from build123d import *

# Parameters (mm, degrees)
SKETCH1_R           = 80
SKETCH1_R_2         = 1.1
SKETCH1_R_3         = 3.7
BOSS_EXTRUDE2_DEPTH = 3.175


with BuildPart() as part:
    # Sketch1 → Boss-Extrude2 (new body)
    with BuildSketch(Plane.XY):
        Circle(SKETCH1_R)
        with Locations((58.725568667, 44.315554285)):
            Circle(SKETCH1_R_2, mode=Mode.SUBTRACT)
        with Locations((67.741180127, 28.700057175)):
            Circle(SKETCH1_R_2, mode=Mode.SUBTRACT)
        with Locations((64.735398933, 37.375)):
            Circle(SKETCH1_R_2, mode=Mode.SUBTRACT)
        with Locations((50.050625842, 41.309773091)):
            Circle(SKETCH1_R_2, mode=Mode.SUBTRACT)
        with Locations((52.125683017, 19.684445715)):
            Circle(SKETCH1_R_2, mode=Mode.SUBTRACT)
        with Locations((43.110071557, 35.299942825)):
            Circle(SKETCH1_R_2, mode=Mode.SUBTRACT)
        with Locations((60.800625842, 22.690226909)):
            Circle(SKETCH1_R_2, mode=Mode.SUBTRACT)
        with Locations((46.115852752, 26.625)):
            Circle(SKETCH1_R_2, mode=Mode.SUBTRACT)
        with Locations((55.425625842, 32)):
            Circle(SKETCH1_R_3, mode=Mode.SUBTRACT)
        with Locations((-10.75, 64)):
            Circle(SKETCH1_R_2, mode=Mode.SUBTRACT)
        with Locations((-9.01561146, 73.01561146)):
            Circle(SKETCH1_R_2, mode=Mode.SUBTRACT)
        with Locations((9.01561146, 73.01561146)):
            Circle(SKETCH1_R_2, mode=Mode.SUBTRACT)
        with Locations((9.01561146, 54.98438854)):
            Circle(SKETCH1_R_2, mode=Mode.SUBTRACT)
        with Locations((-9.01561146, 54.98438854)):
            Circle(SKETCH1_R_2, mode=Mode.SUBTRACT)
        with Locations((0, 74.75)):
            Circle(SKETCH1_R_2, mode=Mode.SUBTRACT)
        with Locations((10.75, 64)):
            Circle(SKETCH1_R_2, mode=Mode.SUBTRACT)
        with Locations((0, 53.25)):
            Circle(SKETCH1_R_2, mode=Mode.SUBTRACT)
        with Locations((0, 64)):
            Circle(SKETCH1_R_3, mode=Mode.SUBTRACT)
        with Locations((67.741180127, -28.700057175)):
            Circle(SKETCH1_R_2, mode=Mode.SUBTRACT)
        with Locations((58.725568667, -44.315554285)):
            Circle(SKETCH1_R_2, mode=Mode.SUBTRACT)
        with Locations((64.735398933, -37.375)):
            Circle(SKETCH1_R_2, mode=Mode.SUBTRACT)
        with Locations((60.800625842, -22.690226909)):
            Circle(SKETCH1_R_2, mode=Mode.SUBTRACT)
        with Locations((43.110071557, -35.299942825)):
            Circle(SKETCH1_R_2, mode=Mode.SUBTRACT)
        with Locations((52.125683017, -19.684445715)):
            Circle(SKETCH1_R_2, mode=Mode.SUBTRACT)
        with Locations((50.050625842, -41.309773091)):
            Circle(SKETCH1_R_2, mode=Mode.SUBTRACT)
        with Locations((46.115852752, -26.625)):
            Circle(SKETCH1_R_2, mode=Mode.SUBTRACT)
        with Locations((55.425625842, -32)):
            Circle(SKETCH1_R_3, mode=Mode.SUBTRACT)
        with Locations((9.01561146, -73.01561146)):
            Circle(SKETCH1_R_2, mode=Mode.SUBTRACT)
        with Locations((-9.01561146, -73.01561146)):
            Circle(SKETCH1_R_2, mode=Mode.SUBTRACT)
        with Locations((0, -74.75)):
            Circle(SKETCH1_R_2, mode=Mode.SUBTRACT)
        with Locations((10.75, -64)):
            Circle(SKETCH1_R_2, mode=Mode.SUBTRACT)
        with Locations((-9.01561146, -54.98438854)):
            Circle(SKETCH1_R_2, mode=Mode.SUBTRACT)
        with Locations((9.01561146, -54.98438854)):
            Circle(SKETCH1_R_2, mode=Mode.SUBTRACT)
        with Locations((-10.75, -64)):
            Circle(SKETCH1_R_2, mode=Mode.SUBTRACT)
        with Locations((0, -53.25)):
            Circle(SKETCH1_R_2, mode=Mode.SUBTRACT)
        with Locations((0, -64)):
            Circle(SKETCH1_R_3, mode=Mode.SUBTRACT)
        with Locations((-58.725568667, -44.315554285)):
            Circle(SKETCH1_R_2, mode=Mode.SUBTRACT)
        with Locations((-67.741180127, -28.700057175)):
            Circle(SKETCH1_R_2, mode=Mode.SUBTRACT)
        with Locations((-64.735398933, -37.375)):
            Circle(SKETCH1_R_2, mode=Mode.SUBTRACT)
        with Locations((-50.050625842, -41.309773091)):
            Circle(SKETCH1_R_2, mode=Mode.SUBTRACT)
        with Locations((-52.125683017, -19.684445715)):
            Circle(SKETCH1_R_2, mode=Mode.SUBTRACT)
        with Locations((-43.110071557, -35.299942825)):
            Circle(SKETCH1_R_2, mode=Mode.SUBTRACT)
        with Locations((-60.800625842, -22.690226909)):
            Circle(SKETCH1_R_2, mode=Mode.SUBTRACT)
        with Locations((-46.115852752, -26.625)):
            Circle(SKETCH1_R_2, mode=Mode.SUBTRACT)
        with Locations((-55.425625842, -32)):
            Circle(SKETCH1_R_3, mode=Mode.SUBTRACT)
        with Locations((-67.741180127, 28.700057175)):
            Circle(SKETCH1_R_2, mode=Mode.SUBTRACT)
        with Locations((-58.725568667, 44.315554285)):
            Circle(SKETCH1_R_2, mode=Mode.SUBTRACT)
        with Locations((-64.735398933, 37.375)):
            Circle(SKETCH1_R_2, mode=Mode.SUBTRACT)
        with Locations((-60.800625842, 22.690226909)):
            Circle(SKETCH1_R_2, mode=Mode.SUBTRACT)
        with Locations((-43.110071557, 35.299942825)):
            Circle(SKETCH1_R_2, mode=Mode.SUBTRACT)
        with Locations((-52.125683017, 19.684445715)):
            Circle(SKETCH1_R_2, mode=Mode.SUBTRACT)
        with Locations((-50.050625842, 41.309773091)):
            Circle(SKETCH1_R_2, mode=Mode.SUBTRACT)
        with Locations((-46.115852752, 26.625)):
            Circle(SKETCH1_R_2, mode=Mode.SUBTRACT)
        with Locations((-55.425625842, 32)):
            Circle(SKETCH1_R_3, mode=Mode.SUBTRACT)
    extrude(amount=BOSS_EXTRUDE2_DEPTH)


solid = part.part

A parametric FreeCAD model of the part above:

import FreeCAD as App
import Part
import Sketcher

doc = App.newDocument("Part")
params = doc.addObject("Spreadsheet::Sheet", "Params")
for row, (alias, value) in enumerate([
    ("sketch1_diameter", "160 mm"),
    ("sketch1_diameter2", "2.2 mm"),
    ("sketch1_diameter3", "7.4 mm"),
    ("pad1_length", "3.175 mm"),
], start=1):
    params.set(f"A{row}", alias)
    params.set(f"B{row}", "=" + value)
    params.setAlias(f"B{row}", alias)

body = doc.addObject("PartDesign::Body", "Body")

sketch1 = doc.addObject("Sketcher::SketchObject", "Sketch")
body.addObject(sketch1)
sketch1.AttachmentSupport = (doc.XY_Plane, [""])
sketch1.MapMode = "FlatFace"
sketch1.addGeometry([
    Part.Circle(App.Vector(0, 0, 0), App.Vector(0, 0, 1), 80),
    Part.Circle(App.Vector(-58.725569, -44.315554, 0), App.Vector(0, 0, 1), 1.1),
    Part.Circle(App.Vector(-50.050626, -41.309773, 0), App.Vector(0, 0, 1), 1.1),
    Part.Circle(App.Vector(-9.015611, -73.015611, 0), App.Vector(0, 0, 1), 1.1),
    Part.Circle(App.Vector(-10.75, -64, 0), App.Vector(0, 0, 1), 1.1),
    Part.Circle(App.Vector(-9.015611, -54.984389, 0), App.Vector(0, 0, 1), 1.1),
    Part.Circle(App.Vector(-64.735399, -37.375, 0), App.Vector(0, 0, 1), 1.1),
    Part.Circle(App.Vector(-67.74118, -28.700057, 0), App.Vector(0, 0, 1), 1.1),
    Part.Circle(App.Vector(-55.425626, -32, 0), App.Vector(0, 0, 1), 3.7),
    Part.Circle(App.Vector(-60.800626, -22.690227, 0), App.Vector(0, 0, 1), 1.1),
    Part.Circle(App.Vector(-52.125683, -19.684446, 0), App.Vector(0, 0, 1), 1.1),
    Part.Circle(App.Vector(-43.110072, -35.299943, 0), App.Vector(0, 0, 1), 1.1),
    Part.Circle(App.Vector(-46.115853, -26.625, 0), App.Vector(0, 0, 1), 1.1),
    Part.Circle(App.Vector(0, -74.75, 0), App.Vector(0, 0, 1), 1.1),
    Part.Circle(App.Vector(9.015611, -73.015611, 0), App.Vector(0, 0, 1), 1.1),
    Part.Circle(App.Vector(0, -64, 0), App.Vector(0, 0, 1), 3.7),
    Part.Circle(App.Vector(10.75, -64, 0), App.Vector(0, 0, 1), 1.1),
    Part.Circle(App.Vector(0, -53.25, 0), App.Vector(0, 0, 1), 1.1),
    Part.Circle(App.Vector(9.015611, -54.984389, 0), App.Vector(0, 0, 1), 1.1),
    Part.Circle(App.Vector(50.050626, -41.309773, 0), App.Vector(0, 0, 1), 1.1),
    Part.Circle(App.Vector(58.725569, -44.315554, 0), App.Vector(0, 0, 1), 1.1),
    Part.Circle(App.Vector(43.110072, -35.299943, 0), App.Vector(0, 0, 1), 1.1),
    Part.Circle(App.Vector(46.115853, -26.625, 0), App.Vector(0, 0, 1), 1.1),
    Part.Circle(App.Vector(55.425626, -32, 0), App.Vector(0, 0, 1), 3.7),
    Part.Circle(App.Vector(64.735399, -37.375, 0), App.Vector(0, 0, 1), 1.1),
    Part.Circle(App.Vector(67.74118, -28.700057, 0), App.Vector(0, 0, 1), 1.1),
    Part.Circle(App.Vector(52.125683, -19.684446, 0), App.Vector(0, 0, 1), 1.1),
    Part.Circle(App.Vector(60.800626, -22.690227, 0), App.Vector(0, 0, 1), 1.1),
    Part.Circle(App.Vector(-60.800626, 22.690227, 0), App.Vector(0, 0, 1), 1.1),
    Part.Circle(App.Vector(-52.125683, 19.684446, 0), App.Vector(0, 0, 1), 1.1),
    Part.Circle(App.Vector(-67.74118, 28.700057, 0), App.Vector(0, 0, 1), 1.1),
    Part.Circle(App.Vector(-64.735399, 37.375, 0), App.Vector(0, 0, 1), 1.1),
    Part.Circle(App.Vector(-55.425626, 32, 0), App.Vector(0, 0, 1), 3.7),
    Part.Circle(App.Vector(-46.115853, 26.625, 0), App.Vector(0, 0, 1), 1.1),
    Part.Circle(App.Vector(-43.110072, 35.299943, 0), App.Vector(0, 0, 1), 1.1),
    Part.Circle(App.Vector(-58.725569, 44.315554, 0), App.Vector(0, 0, 1), 1.1),
    Part.Circle(App.Vector(-50.050626, 41.309773, 0), App.Vector(0, 0, 1), 1.1),
    Part.Circle(App.Vector(-9.015611, 54.984389, 0), App.Vector(0, 0, 1), 1.1),
    Part.Circle(App.Vector(-10.75, 64, 0), App.Vector(0, 0, 1), 1.1),
    Part.Circle(App.Vector(-9.015611, 73.015611, 0), App.Vector(0, 0, 1), 1.1),
    Part.Circle(App.Vector(46.115853, 26.625, 0), App.Vector(0, 0, 1), 1.1),
    Part.Circle(App.Vector(43.110072, 35.299943, 0), App.Vector(0, 0, 1), 1.1),
    Part.Circle(App.Vector(52.125683, 19.684446, 0), App.Vector(0, 0, 1), 1.1),
    Part.Circle(App.Vector(60.800626, 22.690227, 0), App.Vector(0, 0, 1), 1.1),
    Part.Circle(App.Vector(55.425626, 32, 0), App.Vector(0, 0, 1), 3.7),
    Part.Circle(App.Vector(67.74118, 28.700057, 0), App.Vector(0, 0, 1), 1.1),
    Part.Circle(App.Vector(64.735399, 37.375, 0), App.Vector(0, 0, 1), 1.1),
    Part.Circle(App.Vector(0, 53.25, 0), App.Vector(0, 0, 1), 1.1),
    Part.Circle(App.Vector(9.015611, 54.984389, 0), App.Vector(0, 0, 1), 1.1),
    Part.Circle(App.Vector(0, 64, 0), App.Vector(0, 0, 1), 3.7),
    Part.Circle(App.Vector(10.75, 64, 0), App.Vector(0, 0, 1), 1.1),
    Part.Circle(App.Vector(0, 74.75, 0), App.Vector(0, 0, 1), 1.1),
    Part.Circle(App.Vector(9.015611, 73.015611, 0), App.Vector(0, 0, 1), 1.1),
    Part.Circle(App.Vector(50.050626, 41.309773, 0), App.Vector(0, 0, 1), 1.1),
    Part.Circle(App.Vector(58.725569, 44.315554, 0), App.Vector(0, 0, 1), 1.1),
], False)
sketch1.addConstraint([
    Sketcher.Constraint("Coincident", 0, 3, -1, 1),
    Sketcher.Constraint("Equal", 1, 2),
    Sketcher.Constraint("Equal", 2, 3),
    Sketcher.Constraint("Equal", 3, 4),
    Sketcher.Constraint("Equal", 4, 5),
    Sketcher.Constraint("Equal", 5, 6),
    Sketcher.Constraint("Equal", 6, 7),
    Sketcher.Constraint("Equal", 7, 9),
    Sketcher.Constraint("Equal", 9, 10),
    Sketcher.Constraint("Equal", 10, 11),
    Sketcher.Constraint("Equal", 11, 12),
    Sketcher.Constraint("Equal", 12, 13),
    Sketcher.Constraint("Equal", 13, 14),
    Sketcher.Constraint("Equal", 8, 15),
    Sketcher.Constraint("Equal", 14, 16),
    Sketcher.Constraint("Equal", 16, 17),
    Sketcher.Constraint("Equal", 17, 18),
    Sketcher.Constraint("Equal", 18, 19),
    Sketcher.Constraint("Equal", 19, 20),
    Sketcher.Constraint("Equal", 20, 21),
    Sketcher.Constraint("Equal", 21, 22),
    Sketcher.Constraint("Equal", 15, 23),
    Sketcher.Constraint("Equal", 22, 24),
    Sketcher.Constraint("Equal", 24, 25),
    Sketcher.Constraint("Equal", 25, 26),
    Sketcher.Constraint("Equal", 26, 27),
    Sketcher.Constraint("Equal", 27, 28),
    Sketcher.Constraint("Equal", 28, 29),
    Sketcher.Constraint("Equal", 29, 30),
    Sketcher.Constraint("Equal", 30, 31),
    Sketcher.Constraint("Equal", 23, 32),
    Sketcher.Constraint("Equal", 31, 33),
    Sketcher.Constraint("Equal", 33, 34),
    Sketcher.Constraint("Equal", 34, 35),
    Sketcher.Constraint("Equal", 35, 36),
    Sketcher.Constraint("Equal", 36, 37),
    Sketcher.Constraint("Equal", 37, 38),
    Sketcher.Constraint("Equal", 38, 39),
    Sketcher.Constraint("Equal", 39, 40),
    Sketcher.Constraint("Equal", 40, 41),
    Sketcher.Constraint("Equal", 41, 42),
    Sketcher.Constraint("Equal", 42, 43),
    Sketcher.Constraint("Equal", 32, 44),
    Sketcher.Constraint("Equal", 43, 45),
    Sketcher.Constraint("Equal", 45, 46),
    Sketcher.Constraint("Equal", 46, 47),
    Sketcher.Constraint("Equal", 47, 48),
    Sketcher.Constraint("Equal", 44, 49),
    Sketcher.Constraint("Equal", 48, 50),
    Sketcher.Constraint("Equal", 50, 51),
    Sketcher.Constraint("Equal", 51, 52),
    Sketcher.Constraint("Equal", 52, 53),
    Sketcher.Constraint("Equal", 53, 54),
    Sketcher.Constraint("Symmetric", 27, 3, 28, 3, -1, 1),
    Sketcher.Constraint("Symmetric", 26, 3, 29, 3, -1, 1),
    Sketcher.Constraint("Symmetric", 25, 3, 30, 3, -1, 1),
    Sketcher.Constraint("Symmetric", 24, 3, 31, 3, -1, 1),
    Sketcher.Constraint("Symmetric", 23, 3, 32, 3, -1, 1),
    Sketcher.Constraint("Symmetric", 22, 3, 33, 3, -1, 1),
    Sketcher.Constraint("Symmetric", 21, 3, 34, 3, -1, 1),
    Sketcher.Constraint("Symmetric", 20, 3, 35, 3, -1, 1),
    Sketcher.Constraint("Symmetric", 19, 3, 36, 3, -1, 1),
    Sketcher.Constraint("Symmetric", 18, 3, 37, 3, -1, 1),
    Sketcher.Constraint("Symmetric", 16, 3, 38, 3, -1, 1),
    Sketcher.Constraint("Symmetric", 14, 3, 39, 3, -1, 1),
    Sketcher.Constraint("Symmetric", 12, 3, 40, 3, -1, 1),
    Sketcher.Constraint("Symmetric", 11, 3, 41, 3, -1, 1),
    Sketcher.Constraint("Symmetric", 10, 3, 42, 3, -1, 1),
    Sketcher.Constraint("Symmetric", 9, 3, 43, 3, -1, 1),
    Sketcher.Constraint("Symmetric", 8, 3, 44, 3, -1, 1),
    Sketcher.Constraint("Symmetric", 7, 3, 45, 3, -1, 1),
    Sketcher.Constraint("Symmetric", 6, 3, 46, 3, -1, 1),
    Sketcher.Constraint("Symmetric", 17, 3, 47, 3, -1, 1),
    Sketcher.Constraint("Symmetric", 5, 3, 48, 3, -1, 1),
    Sketcher.Constraint("Symmetric", 15, 3, 49, 3, -1, 1),
    Sketcher.Constraint("Symmetric", 4, 3, 50, 3, -1, 1),
    Sketcher.Constraint("Symmetric", 13, 3, 51, 3, -1, 1),
    Sketcher.Constraint("Symmetric", 3, 3, 52, 3, -1, 1),
    Sketcher.Constraint("Symmetric", 2, 3, 53, 3, -1, 1),
    Sketcher.Constraint("Symmetric", 1, 3, 54, 3, -1, 1),
    Sketcher.Constraint("Symmetric", 3, 3, 14, 3, -2),
    Sketcher.Constraint("Symmetric", 4, 3, 16, 3, -2),
    Sketcher.Constraint("Symmetric", 5, 3, 18, 3, -2),
    Sketcher.Constraint("Symmetric", 2, 3, 19, 3, -2),
    Sketcher.Constraint("Symmetric", 1, 3, 20, 3, -2),
    Sketcher.Constraint("Symmetric", 11, 3, 21, 3, -2),
    Sketcher.Constraint("Symmetric", 12, 3, 22, 3, -2),
    Sketcher.Constraint("Symmetric", 8, 3, 23, 3, -2),
    Sketcher.Constraint("Symmetric", 6, 3, 24, 3, -2),
    Sketcher.Constraint("Symmetric", 7, 3, 25, 3, -2),
    Sketcher.Constraint("Symmetric", 10, 3, 26, 3, -2),
    Sketcher.Constraint("Symmetric", 9, 3, 27, 3, -2),
    Sketcher.Constraint("PointOnObject", 13, 3, -2),
    Sketcher.Constraint("PointOnObject", 15, 3, -2),
    Sketcher.Constraint("PointOnObject", 17, 3, -2),
    Sketcher.Constraint("Horizontal", 4, 3, 15, 3),
    Sketcher.Constraint("Vertical", 3, 3, 5, 3),
    Sketcher.Constraint("Diameter", 0, 160.0),
    Sketcher.Constraint("Diameter", 1, 2.2),
    Sketcher.Constraint("Diameter", 8, 7.4),
    Sketcher.Constraint("DistanceY", 4, 3, -1, 1, 64.0),
    Sketcher.Constraint("DistanceY", 8, 3, -1, 1, 32.0),
    Sketcher.Constraint("DistanceX", 4, 3, 16, 3, 21.5),
    Sketcher.Constraint("DistanceY", 13, 3, 17, 3, 21.5),
    Sketcher.Constraint("DistanceY", 13, 3, -1, 1, 74.75),
    Sketcher.Constraint("DistanceX", 9, 3, 2, 3, 10.75),
    Sketcher.Constraint("DistanceY", 24, 3, 22, 3, 10.75),
    Sketcher.Constraint("DistanceY", 22, 3, 40, 3, 53.25),
    Sketcher.Constraint("DistanceX", 8, 3, 2, 3, 5.375),
    Sketcher.Constraint("DistanceX", 6, 3, -1, 1, 64.735399),
    Sketcher.Constraint("DistanceX", 1, 3, -1, 1, 58.725569),
    Sketcher.Constraint("DistanceX", 3, 3, -1, 1, 9.015611),
    Sketcher.Constraint("DistanceY", 3, 3, -1, 1, 73.015611),
    Sketcher.Constraint("DistanceY", 5, 3, -1, 1, 54.984389),
    Sketcher.Constraint("DistanceX", 7, 3, -1, 1, 67.74118),
    Sketcher.Constraint("DistanceX", 11, 3, -1, 1, 43.110072),
    Sketcher.Constraint("DistanceY", 1, 3, 2, 3, 3.005781),
    Sketcher.Constraint("DistanceY", 3, 3, 2, 3, 31.705838),
    Sketcher.Constraint("DistanceY", 5, 3, 7, 3, 26.284331),
    Sketcher.Constraint("DistanceY", 7, 3, 9, 3, 6.00983),
    Sketcher.Constraint("DistanceY", 9, 3, 10, 3, 3.005781),
    Sketcher.Constraint("DistanceY", 2, 3, 11, 3, 6.00983),
    Sketcher.Constraint("DistanceX", 10, 3, 11, 3, 9.015611),
    Sketcher.Constraint("DistanceX", 10, 3, 12, 3, 6.00983),
    Sketcher.Constraint("DistanceX", 2, 3, -1, 1, 50.050626),
])
sketch1.setExpression("Constraints[97]", "Params.sketch1_diameter")
sketch1.setExpression("Constraints[98]", "Params.sketch1_diameter2")
sketch1.setExpression("Constraints[99]", "Params.sketch1_diameter3")
pad1 = doc.addObject("PartDesign::Pad", "Pad")
body.addObject(pad1)
pad1.Profile = sketch1
pad1.setExpression("Length", "Params.pad1_length")

doc.recompute()
